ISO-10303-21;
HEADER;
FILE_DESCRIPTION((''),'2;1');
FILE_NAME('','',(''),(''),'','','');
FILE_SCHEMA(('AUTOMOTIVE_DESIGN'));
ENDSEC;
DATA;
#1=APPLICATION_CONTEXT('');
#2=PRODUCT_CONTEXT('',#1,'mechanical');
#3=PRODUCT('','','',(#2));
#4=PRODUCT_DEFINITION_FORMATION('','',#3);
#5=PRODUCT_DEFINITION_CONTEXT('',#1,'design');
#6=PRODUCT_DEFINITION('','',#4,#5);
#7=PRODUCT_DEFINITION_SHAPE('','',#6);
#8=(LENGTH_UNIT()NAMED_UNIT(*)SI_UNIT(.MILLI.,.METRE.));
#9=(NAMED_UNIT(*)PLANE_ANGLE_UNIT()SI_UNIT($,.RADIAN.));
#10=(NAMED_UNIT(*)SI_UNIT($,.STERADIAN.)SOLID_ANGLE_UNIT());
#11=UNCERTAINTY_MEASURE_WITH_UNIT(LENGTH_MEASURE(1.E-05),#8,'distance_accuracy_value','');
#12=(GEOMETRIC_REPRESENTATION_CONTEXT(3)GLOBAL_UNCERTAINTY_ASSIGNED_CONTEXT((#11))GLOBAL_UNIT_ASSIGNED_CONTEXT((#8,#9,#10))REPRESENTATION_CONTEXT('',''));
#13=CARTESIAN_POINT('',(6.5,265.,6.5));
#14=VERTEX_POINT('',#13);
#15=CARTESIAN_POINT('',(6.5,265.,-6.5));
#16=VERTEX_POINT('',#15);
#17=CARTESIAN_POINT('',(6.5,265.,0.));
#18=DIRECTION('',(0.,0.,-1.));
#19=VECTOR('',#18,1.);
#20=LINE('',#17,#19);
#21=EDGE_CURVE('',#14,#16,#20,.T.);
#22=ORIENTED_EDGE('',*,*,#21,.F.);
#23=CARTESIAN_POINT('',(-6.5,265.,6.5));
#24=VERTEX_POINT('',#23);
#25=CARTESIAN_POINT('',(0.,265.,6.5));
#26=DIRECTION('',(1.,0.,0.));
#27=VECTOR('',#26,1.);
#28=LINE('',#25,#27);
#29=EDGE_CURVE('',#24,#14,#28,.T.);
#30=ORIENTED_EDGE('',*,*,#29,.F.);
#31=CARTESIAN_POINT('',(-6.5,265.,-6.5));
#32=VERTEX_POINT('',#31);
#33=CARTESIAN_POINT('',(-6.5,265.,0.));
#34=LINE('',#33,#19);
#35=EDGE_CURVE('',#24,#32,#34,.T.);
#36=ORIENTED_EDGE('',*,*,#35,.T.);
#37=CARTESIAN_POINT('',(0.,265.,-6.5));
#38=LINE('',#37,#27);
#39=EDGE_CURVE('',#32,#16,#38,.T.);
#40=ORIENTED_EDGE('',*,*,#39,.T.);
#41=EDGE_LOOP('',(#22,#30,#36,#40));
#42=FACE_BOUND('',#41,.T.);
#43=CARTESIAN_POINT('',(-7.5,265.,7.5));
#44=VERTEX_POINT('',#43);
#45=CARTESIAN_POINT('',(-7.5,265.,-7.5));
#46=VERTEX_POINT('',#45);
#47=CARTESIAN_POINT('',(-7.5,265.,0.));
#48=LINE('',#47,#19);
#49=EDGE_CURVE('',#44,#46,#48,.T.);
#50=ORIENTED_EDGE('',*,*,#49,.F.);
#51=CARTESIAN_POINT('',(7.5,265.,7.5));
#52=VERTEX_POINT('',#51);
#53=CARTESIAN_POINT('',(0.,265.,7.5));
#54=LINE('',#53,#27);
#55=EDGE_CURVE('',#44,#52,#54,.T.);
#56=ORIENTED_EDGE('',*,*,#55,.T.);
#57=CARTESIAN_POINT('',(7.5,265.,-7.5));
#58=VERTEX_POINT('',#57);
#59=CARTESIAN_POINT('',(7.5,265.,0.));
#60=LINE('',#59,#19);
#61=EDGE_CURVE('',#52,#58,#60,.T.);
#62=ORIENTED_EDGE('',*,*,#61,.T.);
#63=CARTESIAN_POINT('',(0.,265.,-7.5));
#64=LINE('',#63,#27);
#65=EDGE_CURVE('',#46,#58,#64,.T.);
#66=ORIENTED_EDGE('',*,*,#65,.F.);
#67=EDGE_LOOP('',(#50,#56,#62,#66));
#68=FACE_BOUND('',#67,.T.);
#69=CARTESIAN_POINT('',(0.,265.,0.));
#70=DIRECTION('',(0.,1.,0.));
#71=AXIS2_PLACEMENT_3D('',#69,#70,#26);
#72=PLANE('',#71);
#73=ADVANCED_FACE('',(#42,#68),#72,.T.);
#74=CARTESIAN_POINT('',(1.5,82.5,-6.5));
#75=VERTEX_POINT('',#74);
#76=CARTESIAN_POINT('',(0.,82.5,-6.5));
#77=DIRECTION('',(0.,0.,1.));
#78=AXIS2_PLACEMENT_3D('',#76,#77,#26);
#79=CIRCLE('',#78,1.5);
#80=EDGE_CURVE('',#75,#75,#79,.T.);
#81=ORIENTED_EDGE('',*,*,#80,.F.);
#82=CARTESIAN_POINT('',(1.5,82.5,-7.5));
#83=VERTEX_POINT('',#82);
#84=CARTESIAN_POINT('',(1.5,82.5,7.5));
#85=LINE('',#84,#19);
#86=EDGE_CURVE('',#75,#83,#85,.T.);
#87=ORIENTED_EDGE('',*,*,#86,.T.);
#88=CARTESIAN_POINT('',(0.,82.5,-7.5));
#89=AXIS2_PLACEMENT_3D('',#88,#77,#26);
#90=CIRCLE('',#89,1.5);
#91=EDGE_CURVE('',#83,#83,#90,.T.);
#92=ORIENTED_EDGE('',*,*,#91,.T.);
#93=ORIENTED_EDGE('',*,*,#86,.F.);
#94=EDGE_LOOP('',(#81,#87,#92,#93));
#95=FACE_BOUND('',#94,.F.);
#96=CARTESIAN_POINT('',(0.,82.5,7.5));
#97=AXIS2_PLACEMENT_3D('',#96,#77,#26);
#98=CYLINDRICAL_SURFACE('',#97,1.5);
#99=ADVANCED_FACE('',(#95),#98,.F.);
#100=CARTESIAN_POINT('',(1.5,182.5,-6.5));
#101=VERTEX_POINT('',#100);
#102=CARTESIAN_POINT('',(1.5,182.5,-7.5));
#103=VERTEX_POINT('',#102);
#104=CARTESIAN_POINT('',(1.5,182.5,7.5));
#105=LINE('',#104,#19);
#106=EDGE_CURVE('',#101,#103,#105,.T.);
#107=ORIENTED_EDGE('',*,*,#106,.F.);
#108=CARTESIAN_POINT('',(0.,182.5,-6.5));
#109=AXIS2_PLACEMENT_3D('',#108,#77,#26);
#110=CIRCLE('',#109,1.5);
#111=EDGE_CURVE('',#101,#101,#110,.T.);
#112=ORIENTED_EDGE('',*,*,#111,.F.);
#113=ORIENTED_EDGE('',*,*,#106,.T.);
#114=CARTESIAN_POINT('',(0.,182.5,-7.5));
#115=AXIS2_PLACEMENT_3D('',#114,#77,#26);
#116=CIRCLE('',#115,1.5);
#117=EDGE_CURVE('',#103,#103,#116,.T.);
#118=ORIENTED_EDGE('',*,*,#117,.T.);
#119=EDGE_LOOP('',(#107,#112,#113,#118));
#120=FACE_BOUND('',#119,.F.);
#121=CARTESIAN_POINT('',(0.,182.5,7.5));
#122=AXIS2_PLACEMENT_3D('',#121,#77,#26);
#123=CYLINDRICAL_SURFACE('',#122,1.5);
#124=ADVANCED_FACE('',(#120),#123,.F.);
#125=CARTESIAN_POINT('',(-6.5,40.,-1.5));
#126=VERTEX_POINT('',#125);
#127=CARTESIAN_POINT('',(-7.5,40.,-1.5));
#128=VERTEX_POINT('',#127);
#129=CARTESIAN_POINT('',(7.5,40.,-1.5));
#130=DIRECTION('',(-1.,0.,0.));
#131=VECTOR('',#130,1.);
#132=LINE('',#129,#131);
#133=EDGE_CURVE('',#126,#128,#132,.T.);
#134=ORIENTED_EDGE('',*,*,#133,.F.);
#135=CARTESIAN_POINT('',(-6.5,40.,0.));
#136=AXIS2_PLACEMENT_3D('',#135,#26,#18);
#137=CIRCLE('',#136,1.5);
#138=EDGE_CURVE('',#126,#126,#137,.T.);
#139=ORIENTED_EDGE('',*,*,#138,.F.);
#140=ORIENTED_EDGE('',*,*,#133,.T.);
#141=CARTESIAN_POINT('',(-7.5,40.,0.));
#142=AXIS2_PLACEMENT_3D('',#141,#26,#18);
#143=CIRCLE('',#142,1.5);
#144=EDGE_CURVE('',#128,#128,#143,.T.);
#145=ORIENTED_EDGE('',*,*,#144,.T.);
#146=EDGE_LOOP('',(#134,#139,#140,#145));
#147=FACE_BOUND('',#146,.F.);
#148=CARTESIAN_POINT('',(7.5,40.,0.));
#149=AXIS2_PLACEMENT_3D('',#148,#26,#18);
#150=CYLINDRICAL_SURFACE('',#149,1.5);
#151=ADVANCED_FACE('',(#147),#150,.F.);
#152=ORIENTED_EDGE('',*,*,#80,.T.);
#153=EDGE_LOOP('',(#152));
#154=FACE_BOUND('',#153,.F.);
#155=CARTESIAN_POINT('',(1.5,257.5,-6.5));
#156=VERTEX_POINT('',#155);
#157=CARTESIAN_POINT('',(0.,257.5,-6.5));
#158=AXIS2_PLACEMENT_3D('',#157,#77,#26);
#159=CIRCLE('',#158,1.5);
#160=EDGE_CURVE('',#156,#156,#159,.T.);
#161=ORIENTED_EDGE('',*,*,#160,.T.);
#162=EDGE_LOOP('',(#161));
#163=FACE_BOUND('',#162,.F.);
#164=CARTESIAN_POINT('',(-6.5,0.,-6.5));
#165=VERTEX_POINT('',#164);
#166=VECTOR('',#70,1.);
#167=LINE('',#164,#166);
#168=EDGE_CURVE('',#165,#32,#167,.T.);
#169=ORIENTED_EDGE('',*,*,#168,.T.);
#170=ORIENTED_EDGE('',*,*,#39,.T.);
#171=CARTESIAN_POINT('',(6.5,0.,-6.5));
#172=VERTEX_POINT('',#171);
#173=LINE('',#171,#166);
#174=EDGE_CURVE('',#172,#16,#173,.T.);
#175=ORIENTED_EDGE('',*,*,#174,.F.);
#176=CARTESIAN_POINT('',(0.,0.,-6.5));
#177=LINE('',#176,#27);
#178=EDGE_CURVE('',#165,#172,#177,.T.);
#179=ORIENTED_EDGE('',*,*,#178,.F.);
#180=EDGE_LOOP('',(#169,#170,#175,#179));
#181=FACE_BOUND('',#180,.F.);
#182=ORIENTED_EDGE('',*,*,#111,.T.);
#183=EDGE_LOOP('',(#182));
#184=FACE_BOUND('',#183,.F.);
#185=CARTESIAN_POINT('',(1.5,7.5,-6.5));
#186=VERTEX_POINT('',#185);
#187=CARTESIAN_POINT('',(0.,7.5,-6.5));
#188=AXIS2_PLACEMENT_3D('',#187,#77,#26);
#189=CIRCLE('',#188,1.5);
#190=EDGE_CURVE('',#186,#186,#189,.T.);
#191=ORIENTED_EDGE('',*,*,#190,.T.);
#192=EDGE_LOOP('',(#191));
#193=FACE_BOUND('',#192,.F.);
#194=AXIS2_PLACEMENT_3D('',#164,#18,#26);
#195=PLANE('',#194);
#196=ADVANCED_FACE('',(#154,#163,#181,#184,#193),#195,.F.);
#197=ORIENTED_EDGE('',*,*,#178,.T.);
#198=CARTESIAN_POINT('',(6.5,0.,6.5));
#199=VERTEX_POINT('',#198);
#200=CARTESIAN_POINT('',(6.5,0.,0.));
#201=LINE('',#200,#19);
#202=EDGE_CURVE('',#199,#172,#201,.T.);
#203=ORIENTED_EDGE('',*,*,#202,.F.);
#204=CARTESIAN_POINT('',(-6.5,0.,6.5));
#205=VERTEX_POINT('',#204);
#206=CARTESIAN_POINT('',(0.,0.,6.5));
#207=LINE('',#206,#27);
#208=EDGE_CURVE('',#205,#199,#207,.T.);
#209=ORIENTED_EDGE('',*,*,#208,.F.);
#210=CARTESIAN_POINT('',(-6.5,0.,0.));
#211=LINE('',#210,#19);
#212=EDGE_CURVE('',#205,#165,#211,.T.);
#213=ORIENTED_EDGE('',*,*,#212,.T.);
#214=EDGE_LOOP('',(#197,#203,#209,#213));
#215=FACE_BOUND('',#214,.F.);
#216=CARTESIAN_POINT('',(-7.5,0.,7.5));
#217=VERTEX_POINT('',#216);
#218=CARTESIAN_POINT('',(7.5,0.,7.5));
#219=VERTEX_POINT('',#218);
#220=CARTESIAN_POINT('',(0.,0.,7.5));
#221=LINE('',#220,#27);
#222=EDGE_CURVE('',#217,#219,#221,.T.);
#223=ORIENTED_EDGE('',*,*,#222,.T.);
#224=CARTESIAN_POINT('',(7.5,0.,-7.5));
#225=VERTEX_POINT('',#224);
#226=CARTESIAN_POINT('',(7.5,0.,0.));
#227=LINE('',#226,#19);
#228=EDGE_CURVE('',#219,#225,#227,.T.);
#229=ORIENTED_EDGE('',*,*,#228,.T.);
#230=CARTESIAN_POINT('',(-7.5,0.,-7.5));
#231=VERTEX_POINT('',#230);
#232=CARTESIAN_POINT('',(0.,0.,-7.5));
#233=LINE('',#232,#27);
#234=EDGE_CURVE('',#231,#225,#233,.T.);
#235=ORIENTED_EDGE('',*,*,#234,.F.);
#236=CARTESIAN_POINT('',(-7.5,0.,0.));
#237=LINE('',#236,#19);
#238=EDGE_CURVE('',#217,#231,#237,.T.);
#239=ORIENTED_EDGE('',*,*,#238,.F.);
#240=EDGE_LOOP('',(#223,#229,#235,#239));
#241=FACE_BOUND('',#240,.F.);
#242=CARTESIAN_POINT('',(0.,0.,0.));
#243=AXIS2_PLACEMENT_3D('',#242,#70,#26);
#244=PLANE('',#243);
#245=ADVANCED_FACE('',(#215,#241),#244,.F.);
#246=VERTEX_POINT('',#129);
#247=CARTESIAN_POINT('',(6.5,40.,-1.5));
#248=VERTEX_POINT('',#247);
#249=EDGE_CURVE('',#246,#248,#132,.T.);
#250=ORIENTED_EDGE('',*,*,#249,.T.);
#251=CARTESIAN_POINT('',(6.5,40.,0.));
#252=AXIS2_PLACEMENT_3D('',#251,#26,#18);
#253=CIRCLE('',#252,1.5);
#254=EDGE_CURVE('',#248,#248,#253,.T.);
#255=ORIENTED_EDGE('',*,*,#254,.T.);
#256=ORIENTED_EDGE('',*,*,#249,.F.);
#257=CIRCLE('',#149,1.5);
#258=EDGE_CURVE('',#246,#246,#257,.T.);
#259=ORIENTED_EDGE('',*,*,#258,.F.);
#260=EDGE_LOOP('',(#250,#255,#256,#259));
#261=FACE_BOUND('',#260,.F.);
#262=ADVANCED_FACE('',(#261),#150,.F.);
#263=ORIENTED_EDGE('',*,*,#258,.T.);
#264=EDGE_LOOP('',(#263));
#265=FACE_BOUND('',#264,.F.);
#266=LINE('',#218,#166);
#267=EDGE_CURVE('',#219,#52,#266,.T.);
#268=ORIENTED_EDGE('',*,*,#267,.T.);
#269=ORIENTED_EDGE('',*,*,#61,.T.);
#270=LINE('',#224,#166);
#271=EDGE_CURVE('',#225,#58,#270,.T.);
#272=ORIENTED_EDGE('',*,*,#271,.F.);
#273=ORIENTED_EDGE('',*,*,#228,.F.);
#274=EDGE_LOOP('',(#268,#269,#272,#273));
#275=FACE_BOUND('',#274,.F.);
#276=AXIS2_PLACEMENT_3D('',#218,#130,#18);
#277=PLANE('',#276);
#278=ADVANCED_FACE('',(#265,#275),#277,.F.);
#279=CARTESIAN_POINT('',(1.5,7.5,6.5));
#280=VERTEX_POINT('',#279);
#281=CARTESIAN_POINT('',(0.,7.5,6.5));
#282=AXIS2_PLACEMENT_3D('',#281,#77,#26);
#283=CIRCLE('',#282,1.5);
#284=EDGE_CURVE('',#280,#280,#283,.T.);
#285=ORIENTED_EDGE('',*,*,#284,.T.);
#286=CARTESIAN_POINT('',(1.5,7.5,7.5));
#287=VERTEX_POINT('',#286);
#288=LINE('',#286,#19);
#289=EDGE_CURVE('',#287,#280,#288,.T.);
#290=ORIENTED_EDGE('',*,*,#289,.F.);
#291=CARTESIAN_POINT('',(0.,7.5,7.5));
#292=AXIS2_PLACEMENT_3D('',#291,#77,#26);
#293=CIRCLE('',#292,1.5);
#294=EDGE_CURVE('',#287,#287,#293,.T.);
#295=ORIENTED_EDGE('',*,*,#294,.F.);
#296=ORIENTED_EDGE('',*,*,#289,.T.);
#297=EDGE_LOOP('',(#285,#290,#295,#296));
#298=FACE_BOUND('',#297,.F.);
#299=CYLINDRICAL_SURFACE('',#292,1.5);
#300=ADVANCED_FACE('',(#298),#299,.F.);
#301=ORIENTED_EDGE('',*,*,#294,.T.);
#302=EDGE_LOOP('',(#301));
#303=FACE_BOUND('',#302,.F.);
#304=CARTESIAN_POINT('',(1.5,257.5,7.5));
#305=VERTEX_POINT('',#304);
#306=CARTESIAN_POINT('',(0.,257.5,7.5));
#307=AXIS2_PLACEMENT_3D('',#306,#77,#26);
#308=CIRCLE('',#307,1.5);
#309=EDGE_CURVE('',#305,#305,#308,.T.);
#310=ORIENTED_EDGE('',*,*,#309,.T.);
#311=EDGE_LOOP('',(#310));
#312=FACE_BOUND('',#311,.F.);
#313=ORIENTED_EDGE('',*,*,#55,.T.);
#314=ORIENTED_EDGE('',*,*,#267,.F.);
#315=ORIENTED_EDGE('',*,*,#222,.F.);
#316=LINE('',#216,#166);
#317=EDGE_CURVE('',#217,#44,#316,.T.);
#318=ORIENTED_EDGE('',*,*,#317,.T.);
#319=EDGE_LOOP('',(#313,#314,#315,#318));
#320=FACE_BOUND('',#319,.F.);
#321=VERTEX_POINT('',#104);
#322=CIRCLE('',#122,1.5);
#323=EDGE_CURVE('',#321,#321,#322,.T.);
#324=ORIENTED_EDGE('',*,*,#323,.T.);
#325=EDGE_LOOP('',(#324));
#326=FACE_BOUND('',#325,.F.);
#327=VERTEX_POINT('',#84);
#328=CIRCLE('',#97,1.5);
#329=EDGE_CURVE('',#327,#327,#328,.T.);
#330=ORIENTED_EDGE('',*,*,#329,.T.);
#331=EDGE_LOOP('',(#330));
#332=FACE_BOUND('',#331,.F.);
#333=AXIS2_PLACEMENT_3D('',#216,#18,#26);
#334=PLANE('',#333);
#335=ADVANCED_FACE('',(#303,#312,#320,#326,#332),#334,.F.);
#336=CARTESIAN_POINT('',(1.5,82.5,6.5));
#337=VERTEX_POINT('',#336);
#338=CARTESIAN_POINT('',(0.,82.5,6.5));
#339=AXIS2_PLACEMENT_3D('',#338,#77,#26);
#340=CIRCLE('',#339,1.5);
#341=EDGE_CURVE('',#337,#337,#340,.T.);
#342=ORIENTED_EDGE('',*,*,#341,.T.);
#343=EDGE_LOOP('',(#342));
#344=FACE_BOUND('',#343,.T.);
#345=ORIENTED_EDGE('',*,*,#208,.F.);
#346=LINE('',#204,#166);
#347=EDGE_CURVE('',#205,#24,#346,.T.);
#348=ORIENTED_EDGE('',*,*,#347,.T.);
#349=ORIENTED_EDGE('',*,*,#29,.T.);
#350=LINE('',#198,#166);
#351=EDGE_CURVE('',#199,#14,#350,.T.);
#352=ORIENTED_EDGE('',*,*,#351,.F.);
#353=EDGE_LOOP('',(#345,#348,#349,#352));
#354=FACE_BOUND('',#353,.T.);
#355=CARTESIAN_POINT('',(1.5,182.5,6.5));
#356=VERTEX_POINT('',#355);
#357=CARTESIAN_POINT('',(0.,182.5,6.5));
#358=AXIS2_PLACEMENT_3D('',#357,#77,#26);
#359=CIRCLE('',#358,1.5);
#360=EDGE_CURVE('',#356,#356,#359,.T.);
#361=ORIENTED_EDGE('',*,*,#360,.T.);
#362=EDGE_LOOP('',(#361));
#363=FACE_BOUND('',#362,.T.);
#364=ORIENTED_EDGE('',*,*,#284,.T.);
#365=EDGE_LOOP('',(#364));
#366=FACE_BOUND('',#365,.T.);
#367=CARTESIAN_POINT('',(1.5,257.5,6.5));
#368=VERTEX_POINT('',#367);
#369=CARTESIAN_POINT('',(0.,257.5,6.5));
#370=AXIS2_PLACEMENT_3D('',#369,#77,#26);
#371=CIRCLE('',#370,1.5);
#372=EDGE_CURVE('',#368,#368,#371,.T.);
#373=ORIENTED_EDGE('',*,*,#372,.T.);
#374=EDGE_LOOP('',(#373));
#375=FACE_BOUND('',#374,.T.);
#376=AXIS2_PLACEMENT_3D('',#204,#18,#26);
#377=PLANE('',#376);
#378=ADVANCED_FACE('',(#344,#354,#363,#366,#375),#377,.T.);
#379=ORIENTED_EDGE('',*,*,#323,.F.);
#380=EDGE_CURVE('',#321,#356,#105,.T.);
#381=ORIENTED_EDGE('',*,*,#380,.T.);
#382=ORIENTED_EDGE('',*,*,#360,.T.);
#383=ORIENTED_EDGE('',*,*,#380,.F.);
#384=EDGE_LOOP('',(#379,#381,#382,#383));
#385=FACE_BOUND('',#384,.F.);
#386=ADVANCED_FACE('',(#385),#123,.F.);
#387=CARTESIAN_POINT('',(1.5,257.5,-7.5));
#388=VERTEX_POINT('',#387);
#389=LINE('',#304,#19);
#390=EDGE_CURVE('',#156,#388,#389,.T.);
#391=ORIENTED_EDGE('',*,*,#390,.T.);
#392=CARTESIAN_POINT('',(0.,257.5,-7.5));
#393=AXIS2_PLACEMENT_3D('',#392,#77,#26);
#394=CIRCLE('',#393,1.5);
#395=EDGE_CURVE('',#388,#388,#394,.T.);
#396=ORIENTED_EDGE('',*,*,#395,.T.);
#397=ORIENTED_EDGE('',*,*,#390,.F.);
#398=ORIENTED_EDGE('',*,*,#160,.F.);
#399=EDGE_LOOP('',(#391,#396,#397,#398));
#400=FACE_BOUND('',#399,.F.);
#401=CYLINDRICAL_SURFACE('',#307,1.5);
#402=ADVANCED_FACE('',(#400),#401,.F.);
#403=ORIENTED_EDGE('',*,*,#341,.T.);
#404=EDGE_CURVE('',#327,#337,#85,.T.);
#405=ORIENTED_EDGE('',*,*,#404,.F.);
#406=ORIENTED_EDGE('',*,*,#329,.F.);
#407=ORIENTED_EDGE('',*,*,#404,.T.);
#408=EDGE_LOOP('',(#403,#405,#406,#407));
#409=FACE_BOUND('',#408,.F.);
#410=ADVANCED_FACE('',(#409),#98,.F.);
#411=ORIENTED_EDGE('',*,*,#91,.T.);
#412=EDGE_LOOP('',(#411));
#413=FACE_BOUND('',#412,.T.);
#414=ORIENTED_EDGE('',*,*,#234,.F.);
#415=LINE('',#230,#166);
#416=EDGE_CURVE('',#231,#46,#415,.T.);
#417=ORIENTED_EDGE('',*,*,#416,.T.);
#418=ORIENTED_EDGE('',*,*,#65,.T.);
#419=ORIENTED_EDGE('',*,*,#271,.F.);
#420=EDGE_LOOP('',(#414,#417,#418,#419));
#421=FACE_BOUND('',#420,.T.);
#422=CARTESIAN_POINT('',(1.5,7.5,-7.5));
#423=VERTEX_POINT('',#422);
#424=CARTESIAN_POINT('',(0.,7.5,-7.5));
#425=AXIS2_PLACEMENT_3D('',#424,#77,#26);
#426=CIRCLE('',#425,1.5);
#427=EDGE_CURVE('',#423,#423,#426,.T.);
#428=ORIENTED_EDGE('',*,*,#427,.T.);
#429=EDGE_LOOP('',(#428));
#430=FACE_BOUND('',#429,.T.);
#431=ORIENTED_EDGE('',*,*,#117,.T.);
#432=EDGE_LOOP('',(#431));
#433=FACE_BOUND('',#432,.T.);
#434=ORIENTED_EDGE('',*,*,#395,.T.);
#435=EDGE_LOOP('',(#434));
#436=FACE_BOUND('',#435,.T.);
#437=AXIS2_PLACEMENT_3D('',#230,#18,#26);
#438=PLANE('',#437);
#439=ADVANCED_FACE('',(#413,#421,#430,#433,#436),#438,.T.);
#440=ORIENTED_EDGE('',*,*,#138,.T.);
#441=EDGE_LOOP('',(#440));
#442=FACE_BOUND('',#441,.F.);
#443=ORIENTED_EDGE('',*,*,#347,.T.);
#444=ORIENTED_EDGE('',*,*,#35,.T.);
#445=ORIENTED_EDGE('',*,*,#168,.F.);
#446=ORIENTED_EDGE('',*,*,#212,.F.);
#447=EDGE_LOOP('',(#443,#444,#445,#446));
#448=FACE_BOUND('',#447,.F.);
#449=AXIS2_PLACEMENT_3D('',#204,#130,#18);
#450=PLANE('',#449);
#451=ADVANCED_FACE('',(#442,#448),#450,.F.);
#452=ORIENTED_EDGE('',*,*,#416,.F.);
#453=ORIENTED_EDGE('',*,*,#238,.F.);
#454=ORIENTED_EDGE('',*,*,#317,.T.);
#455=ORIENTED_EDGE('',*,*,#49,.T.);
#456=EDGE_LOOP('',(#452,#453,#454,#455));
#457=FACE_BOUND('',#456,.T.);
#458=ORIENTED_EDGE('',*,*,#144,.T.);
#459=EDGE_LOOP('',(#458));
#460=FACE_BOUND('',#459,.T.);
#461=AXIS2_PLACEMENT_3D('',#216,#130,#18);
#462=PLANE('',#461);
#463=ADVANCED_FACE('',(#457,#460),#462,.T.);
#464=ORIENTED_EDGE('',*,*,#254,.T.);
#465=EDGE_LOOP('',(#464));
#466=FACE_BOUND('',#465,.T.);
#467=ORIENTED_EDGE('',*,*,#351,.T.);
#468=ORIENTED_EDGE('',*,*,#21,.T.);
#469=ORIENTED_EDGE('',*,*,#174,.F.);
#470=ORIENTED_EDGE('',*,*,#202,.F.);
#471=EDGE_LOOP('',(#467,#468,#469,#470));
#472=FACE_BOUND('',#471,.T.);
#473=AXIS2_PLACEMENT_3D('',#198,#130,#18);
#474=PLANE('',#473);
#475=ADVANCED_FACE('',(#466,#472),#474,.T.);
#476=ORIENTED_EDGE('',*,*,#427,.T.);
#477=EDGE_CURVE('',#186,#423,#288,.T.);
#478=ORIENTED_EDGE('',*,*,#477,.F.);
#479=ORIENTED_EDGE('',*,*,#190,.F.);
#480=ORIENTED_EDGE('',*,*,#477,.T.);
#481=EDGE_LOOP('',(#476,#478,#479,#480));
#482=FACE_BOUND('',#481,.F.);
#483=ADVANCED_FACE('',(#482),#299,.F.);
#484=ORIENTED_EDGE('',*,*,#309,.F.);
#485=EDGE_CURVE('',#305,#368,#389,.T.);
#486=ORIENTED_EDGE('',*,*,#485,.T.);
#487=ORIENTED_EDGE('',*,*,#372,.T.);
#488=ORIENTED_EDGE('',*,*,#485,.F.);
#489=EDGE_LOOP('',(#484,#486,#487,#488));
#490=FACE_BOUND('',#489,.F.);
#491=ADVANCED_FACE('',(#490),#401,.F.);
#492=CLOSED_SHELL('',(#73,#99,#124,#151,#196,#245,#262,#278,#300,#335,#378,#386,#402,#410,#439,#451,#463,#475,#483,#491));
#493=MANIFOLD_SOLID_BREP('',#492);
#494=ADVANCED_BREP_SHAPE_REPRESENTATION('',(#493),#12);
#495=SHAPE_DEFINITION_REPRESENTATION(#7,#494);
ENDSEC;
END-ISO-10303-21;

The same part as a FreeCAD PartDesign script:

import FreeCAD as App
import Part
import Sketcher
Q = App.Units.Quantity


def add_polygon(sketch, points):
    """Adds a closed chain of lines whose ends are joined by coincident constraints."""
    first, n = sketch.GeometryCount, len(points)
    for a, b in zip(points, points[1:] + points[:1]):
        sketch.addGeometry(Part.LineSegment(App.Vector(*a, 0), App.Vector(*b, 0)), False)
    for i in range(n):
        sketch.addConstraint(Sketcher.Constraint("Coincident", first + i, 2, first + (i + 1) % n, 1))

doc = App.newDocument("Part")
body = doc.addObject("PartDesign::Body", "Body")

sketch1 = body.newObject("Sketcher::SketchObject", "Sketch")
sketch1.AttachmentSupport = (doc.getObject("XZ_Plane"), [""])
sketch1.MapMode = "FlatFace"
add_polygon(sketch1, [(-8, -8), (-8, 8), (8, 8), (8, -8)])
add_polygon(sketch1, [(6, 6), (-6, 6), (-6, -6), (6, -6)])
sketch1.addConstraint(Sketcher.Constraint("Vertical", 0))
sketch1.addConstraint(Sketcher.Constraint("Horizontal", 1))
sketch1.addConstraint(Sketcher.Constraint("Vertical", 2))
sketch1.addConstraint(Sketcher.Constraint("Horizontal", 3))
sketch1.addConstraint(Sketcher.Constraint("Horizontal", 4))
sketch1.addConstraint(Sketcher.Constraint("Vertical", 5))
sketch1.addConstraint(Sketcher.Constraint("Horizontal", 6))
sketch1.addConstraint(Sketcher.Constraint("Vertical", 7))
sketch1.addConstraint(Sketcher.Constraint("Symmetric", 0, 2, 2, 2, -1, 1))
sketch1.addConstraint(Sketcher.Constraint("Symmetric", 4, 2, 6, 2, -1, 1))
sketch1.addConstraint(Sketcher.Constraint("Equal", 3, 0))
sketch1.addConstraint(Sketcher.Constraint("Equal", 6, 5))
sketch1.addConstraint(Sketcher.Constraint("DistanceX", 1, 1, 1, 2, Q("15 mm")))
sketch1.addConstraint(Sketcher.Constraint("DistanceX", 4, 2, 4, 1, Q("13 mm")))
pad1 = body.newObject("PartDesign::Pad", "Pad")
pad1.Profile = sketch1
pad1.Length = 265
pad1.Reversed = True

sketch2 = body.newObject("Sketcher::SketchObject", "Sketch001")
sketch2.AttachmentSupport = (doc.getObject("XY_Plane"), [""])
sketch2.MapMode = "FlatFace"
sketch2.AttachmentOffset = App.Placement(App.Vector(0, 0, 7.5), App.Rotation())
sketch2.addGeometry(Part.Circle(App.Vector(0, 7.5, 0), App.Vector(0, 0, 1), 1.5), False)
sketch2.addGeometry(Part.Circle(App.Vector(0, 257.5, 0), App.Vector(0, 0, 1), 1.5), False)
sketch2.addGeometry(Part.Circle(App.Vector(0, 182.5, 0), App.Vector(0, 0, 1), 1.5), False)
sketch2.addGeometry(Part.Circle(App.Vector(0, 82.5, 0), App.Vector(0, 0, 1), 1.5), False)
sketch2.addConstraint(Sketcher.Constraint("Equal", 0, 1))
sketch2.addConstraint(Sketcher.Constraint("Equal", 1, 2))
sketch2.addConstraint(Sketcher.Constraint("Equal", 2, 3))
sketch2.addConstraint(Sketcher.Constraint("PointOnObject", 0, 3, -2))
sketch2.addConstraint(Sketcher.Constraint("PointOnObject", 1, 3, -2))
sketch2.addConstraint(Sketcher.Constraint("PointOnObject", 2, 3, -2))
sketch2.addConstraint(Sketcher.Constraint("PointOnObject", 3, 3, -2))
sketch2.addConstraint(Sketcher.Constraint("Diameter", 0, Q("3 mm")))
sketch2.addConstraint(Sketcher.Constraint("DistanceY", 0, 3, 1, 3, Q("250 mm")))
sketch2.addConstraint(Sketcher.Constraint("DistanceY", 2, 3, 1, 3, Q("75 mm")))
sketch2.addConstraint(Sketcher.Constraint("DistanceY", 0, 3, 3, 3, Q("75 mm")))
sketch2.addConstraint(Sketcher.Constraint("DistanceY", -1, 1, 0, 3, Q("7.5 mm")))
pocket1 = body.newObject("PartDesign::Pocket", "Pocket")
pocket1.Profile = sketch2
pocket1.Type = "ThroughAll"

sketch3 = body.newObject("Sketcher::SketchObject", "Sketch002")
sketch3.AttachmentSupport = (doc.getObject("YZ_Plane"), [""])
sketch3.MapMode = "FlatFace"
sketch3.AttachmentOffset = App.Placement(App.Vector(0, 0, 7.5), App.Rotation())
sketch3.addGeometry(Part.Circle(App.Vector(40, 0, 0), App.Vector(0, 0, 1), 1.5), False)
sketch3.addConstraint(Sketcher.Constraint("PointOnObject", 0, 3, -1))
sketch3.addConstraint(Sketcher.Constraint("Diameter", 0, Q("3 mm")))
sketch3.addConstraint(Sketcher.Constraint("DistanceX", -1, 1, 0, 3, Q("40 mm")))
pocket2 = body.newObject("PartDesign::Pocket", "Pocket001")
pocket2.Profile = sketch3
pocket2.Type = "ThroughAll"

doc.recompute()
